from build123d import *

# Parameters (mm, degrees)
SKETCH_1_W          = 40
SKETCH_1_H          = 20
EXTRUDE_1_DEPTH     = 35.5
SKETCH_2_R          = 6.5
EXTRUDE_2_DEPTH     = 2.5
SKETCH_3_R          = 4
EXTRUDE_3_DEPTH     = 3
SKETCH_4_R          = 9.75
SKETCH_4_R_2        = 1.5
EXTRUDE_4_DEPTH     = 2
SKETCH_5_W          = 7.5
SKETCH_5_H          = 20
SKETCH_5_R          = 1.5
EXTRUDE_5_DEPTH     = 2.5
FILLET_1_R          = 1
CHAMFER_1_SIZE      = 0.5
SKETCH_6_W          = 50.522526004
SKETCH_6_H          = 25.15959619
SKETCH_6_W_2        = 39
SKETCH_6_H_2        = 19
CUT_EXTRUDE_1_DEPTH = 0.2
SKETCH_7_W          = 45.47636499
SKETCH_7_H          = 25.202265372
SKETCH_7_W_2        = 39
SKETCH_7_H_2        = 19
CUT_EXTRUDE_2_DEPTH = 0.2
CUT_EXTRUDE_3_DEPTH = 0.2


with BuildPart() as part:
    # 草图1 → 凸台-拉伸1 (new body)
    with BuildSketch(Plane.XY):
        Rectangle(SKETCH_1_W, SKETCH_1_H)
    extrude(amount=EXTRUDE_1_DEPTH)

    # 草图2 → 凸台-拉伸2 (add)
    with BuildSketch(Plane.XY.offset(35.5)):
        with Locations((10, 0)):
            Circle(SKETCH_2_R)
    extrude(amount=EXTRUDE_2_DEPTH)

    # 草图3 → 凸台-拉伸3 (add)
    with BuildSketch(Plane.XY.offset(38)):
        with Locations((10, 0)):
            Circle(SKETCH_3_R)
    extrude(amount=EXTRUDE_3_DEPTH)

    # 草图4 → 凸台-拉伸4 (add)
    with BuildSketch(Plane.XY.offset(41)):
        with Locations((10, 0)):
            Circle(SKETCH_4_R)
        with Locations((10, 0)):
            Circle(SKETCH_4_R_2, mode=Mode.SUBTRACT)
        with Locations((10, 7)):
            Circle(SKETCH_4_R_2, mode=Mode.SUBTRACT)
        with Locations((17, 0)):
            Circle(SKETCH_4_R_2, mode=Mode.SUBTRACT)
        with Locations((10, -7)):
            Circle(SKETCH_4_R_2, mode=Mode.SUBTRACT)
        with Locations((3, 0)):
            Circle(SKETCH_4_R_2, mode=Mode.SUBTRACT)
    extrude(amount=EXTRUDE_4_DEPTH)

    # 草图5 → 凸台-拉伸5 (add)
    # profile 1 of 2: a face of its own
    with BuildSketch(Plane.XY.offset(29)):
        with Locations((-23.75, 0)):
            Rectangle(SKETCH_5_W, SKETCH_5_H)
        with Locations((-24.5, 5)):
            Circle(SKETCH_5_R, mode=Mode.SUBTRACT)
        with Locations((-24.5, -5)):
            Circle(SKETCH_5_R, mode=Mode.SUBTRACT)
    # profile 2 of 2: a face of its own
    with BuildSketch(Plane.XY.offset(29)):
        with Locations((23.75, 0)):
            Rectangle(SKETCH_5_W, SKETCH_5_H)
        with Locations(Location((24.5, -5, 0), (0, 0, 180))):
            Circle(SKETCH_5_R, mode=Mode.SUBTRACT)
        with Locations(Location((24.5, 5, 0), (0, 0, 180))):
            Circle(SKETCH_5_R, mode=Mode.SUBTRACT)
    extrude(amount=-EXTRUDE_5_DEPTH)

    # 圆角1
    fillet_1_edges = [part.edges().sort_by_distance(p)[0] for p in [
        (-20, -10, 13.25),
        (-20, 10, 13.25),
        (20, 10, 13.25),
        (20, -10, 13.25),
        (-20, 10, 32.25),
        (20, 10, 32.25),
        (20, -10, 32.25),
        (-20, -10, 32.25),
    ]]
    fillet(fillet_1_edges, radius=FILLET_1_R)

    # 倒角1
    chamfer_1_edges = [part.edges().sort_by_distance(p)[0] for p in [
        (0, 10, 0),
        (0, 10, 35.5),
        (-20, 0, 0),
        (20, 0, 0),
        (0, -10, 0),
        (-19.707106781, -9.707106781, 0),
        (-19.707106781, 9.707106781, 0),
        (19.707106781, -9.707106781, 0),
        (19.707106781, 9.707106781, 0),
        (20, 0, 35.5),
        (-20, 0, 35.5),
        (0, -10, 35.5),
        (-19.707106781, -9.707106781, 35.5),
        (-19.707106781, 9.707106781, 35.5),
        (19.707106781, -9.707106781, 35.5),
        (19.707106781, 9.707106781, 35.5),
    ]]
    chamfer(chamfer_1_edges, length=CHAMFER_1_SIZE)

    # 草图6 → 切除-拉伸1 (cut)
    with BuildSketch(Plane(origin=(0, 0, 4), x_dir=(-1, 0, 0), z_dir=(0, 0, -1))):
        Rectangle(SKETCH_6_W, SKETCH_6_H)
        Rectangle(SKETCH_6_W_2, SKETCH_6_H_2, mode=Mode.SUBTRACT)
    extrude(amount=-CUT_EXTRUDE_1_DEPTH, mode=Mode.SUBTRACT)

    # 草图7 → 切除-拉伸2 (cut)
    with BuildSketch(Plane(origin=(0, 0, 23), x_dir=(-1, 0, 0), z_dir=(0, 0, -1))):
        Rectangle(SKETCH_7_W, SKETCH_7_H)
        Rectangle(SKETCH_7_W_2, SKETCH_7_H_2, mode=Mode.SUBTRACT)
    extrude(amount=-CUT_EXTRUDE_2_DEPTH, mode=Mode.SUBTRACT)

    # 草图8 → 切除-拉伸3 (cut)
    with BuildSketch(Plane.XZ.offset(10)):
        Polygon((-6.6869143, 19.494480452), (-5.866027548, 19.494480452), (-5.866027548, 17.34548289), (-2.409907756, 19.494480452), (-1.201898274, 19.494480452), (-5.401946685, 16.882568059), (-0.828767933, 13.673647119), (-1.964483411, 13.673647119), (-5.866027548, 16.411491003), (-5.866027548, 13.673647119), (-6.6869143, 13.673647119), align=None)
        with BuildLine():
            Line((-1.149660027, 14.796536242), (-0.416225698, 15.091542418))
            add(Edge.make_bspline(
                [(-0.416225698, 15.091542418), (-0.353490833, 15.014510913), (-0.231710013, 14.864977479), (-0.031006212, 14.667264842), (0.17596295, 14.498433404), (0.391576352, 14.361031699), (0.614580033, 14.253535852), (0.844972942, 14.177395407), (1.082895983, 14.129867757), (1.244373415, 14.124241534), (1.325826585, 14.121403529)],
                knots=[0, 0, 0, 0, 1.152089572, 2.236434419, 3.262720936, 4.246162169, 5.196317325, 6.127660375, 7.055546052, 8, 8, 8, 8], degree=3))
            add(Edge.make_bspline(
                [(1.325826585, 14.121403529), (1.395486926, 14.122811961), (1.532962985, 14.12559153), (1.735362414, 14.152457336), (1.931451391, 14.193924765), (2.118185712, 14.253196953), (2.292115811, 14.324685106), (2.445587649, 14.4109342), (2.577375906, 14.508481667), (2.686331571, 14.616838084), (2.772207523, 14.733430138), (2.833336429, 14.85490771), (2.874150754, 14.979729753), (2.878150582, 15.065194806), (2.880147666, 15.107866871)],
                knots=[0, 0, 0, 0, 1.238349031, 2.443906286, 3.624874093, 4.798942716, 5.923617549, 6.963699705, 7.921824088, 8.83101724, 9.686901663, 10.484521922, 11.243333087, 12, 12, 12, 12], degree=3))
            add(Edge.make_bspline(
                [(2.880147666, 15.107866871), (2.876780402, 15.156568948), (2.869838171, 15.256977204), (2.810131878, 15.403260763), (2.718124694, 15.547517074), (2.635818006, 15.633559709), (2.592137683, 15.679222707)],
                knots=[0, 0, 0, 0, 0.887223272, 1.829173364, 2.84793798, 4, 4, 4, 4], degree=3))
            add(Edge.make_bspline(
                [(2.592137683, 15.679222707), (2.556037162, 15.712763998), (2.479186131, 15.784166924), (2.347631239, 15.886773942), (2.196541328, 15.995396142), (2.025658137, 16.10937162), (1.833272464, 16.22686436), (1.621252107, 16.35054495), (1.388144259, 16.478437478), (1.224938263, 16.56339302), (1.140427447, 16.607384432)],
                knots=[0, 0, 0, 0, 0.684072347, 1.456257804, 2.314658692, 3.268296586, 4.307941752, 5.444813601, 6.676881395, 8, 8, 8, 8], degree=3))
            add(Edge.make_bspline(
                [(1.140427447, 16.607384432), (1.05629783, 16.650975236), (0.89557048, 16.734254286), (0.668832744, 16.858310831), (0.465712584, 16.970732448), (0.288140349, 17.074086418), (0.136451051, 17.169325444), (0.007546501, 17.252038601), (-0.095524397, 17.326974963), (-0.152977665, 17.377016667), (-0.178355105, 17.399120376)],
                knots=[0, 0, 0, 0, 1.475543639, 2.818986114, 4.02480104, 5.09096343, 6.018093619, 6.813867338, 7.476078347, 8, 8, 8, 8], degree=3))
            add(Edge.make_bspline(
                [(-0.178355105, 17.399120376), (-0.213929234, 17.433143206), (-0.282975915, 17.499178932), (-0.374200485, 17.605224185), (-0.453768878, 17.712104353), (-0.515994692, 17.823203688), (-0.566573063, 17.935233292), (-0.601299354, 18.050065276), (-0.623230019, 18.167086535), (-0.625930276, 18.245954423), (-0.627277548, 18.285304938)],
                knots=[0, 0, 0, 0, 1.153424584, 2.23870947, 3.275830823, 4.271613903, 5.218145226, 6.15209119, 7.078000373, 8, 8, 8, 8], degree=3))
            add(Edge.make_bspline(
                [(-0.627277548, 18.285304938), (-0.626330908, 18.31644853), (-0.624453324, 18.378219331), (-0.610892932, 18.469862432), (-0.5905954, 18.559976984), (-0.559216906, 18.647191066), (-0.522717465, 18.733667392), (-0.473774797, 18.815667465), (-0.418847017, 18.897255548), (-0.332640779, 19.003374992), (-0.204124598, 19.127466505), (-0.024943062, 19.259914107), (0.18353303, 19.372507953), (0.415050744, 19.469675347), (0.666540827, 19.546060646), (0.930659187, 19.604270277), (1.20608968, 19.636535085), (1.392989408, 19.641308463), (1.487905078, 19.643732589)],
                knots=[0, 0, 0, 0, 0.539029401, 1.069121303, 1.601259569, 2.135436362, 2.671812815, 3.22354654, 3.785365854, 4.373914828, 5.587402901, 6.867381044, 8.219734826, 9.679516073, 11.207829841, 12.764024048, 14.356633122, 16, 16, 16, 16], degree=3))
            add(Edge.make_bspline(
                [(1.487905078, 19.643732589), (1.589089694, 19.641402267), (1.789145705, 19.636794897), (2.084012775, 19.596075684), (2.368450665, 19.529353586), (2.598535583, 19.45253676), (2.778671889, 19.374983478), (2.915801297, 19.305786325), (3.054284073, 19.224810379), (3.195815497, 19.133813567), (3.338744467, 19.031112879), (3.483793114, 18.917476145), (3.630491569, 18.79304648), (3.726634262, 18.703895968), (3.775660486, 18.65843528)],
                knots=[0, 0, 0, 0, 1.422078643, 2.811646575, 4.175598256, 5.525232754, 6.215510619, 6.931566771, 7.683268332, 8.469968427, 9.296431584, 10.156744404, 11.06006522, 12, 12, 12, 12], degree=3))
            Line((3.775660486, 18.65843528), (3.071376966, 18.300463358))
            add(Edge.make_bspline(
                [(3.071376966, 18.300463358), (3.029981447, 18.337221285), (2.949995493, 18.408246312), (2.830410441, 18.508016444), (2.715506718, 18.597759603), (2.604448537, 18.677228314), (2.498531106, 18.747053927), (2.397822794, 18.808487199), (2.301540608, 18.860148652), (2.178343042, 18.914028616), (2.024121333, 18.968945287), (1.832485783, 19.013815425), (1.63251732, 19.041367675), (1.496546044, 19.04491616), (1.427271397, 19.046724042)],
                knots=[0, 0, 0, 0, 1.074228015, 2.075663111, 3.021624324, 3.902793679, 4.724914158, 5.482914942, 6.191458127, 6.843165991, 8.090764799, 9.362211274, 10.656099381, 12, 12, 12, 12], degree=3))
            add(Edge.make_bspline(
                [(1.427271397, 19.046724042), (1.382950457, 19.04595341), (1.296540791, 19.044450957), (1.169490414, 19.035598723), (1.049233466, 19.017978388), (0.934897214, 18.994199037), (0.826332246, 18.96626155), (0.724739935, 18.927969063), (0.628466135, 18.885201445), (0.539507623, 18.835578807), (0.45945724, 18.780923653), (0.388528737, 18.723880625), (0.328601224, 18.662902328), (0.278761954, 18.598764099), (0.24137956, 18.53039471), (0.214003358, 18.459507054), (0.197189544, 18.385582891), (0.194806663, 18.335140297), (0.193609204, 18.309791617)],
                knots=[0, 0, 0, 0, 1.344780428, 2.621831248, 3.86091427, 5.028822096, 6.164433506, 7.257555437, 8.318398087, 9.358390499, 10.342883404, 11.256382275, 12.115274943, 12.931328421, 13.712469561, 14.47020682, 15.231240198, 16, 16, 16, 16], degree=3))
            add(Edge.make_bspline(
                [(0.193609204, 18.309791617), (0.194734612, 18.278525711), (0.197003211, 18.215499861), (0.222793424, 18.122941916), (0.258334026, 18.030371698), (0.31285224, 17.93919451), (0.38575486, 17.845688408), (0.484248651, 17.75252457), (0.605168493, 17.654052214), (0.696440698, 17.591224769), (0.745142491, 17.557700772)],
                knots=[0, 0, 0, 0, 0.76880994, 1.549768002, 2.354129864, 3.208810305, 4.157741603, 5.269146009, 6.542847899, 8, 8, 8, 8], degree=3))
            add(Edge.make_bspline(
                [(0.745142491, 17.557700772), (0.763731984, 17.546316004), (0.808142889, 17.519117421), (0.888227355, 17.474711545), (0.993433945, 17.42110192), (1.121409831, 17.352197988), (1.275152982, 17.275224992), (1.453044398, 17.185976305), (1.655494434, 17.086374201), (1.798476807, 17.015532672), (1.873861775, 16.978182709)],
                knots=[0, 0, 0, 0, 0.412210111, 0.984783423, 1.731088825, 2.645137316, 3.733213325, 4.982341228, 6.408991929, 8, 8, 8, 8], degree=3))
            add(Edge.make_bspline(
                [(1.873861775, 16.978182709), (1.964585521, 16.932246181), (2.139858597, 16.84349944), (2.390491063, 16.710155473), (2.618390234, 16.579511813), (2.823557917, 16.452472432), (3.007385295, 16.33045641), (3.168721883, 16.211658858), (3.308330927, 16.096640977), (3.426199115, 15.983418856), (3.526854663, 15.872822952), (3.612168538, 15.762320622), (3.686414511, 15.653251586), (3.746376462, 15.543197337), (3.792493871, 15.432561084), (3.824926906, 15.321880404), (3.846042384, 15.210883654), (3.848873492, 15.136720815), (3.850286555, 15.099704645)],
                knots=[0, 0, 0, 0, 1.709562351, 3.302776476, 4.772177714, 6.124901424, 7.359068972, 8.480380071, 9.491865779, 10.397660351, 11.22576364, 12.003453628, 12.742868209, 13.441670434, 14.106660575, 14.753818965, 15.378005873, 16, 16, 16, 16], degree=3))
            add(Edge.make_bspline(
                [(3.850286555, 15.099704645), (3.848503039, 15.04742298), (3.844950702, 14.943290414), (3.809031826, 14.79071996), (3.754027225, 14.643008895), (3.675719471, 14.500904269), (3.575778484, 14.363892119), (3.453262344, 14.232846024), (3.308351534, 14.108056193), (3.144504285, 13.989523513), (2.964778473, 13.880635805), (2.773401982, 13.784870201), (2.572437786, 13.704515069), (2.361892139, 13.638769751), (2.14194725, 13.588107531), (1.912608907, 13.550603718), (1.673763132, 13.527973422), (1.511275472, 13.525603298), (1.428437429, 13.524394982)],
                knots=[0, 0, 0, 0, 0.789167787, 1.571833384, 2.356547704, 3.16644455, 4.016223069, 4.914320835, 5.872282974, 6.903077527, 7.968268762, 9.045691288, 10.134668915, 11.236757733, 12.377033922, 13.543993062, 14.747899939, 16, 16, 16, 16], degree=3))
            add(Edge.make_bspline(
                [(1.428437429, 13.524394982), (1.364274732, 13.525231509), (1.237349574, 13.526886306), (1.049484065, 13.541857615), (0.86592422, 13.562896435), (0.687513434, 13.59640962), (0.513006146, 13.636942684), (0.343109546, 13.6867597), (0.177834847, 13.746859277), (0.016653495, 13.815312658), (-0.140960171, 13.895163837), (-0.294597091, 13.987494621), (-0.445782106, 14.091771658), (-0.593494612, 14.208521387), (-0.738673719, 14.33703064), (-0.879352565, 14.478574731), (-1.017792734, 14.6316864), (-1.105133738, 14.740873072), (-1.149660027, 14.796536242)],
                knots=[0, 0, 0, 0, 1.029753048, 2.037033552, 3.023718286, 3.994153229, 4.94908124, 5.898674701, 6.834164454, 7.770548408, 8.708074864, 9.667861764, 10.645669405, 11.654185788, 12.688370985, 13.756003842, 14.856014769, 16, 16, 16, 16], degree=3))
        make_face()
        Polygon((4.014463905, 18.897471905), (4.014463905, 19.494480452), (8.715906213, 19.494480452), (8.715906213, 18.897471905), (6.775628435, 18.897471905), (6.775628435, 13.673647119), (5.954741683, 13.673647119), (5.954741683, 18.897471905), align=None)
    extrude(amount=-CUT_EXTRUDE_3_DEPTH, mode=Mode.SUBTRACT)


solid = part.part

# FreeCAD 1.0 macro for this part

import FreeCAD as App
import Part
import Sketcher
from FreeCAD import Vector


def edges_at(feature, points):
    """Names of the edges that pass closest to the given points."""
    edges = feature.Shape.Edges
    near = lambda p: min(range(len(edges)), key=lambda i: edges[i].distToShape(Part.Vertex(*p))[0])
    return sorted({f"Edge{near(p) + 1}" for p in points})


def add_polygon(sketch, points):
    """Adds a closed chain of lines whose ends are joined by coincident constraints."""
    first, n = sketch.GeometryCount, len(points)
    for a, b in zip(points, points[1:] + points[:1]):
        sketch.addGeometry(Part.LineSegment(App.Vector(*a, 0), App.Vector(*b, 0)), False)
    for i in range(n):
        sketch.addConstraint(Sketcher.Constraint("Coincident", first + i, 2, first + (i + 1) % n, 1))

doc = App.newDocument("Part")
body = doc.addObject("PartDesign::Body", "Body")

sketch1 = body.newObject("Sketcher::SketchObject", "Sketch")
sketch1.AttachmentSupport = (doc.getObject("XY_Plane"), [""])
sketch1.MapMode = "FlatFace"
add_polygon(sketch1, [(-20, 10), (-20, -10), (20, -10), (20, 10)])
sketch1.addConstraint([
    Sketcher.Constraint("Vertical", 0),
    Sketcher.Constraint("Horizontal", 1),
    Sketcher.Constraint("Vertical", 2),
    Sketcher.Constraint("Horizontal", 3),
    Sketcher.Constraint("Symmetric", 0, 2, 2, 2, -1, 1),
    Sketcher.Constraint("DistanceX", 1, 1, 1, 2, 40.0),
    Sketcher.Constraint("DistanceY", 0, 2, 0, 1, 20.0),
])
pad1 = body.newObject("PartDesign::Pad", "Pad")
pad1.Profile = sketch1
pad1.Length = 35.5

sketch2 = body.newObject("Sketcher::SketchObject", "Sketch001")
sketch2.AttachmentSupport = (doc.getObject("XY_Plane"), [""])
sketch2.MapMode = "FlatFace"
sketch2.AttachmentOffset = App.Placement(Vector(0, 0, 35.5), App.Rotation())
sketch2.addGeometry(Part.Circle(Vector(10, 0, 0), Vector(0, 0, 1), 6), False)
sketch2.addConstraint([
    Sketcher.Constraint("PointOnObject", 0, 3, -1),
    Sketcher.Constraint("Diameter", 0, 13.0),
    Sketcher.Constraint("DistanceX", -1, 1, 0, 3, 10.0),
])
pad2 = body.newObject("PartDesign::Pad", "Pad001")
pad2.Profile = sketch2
pad2.Length = 2.5

sketch3 = body.newObject("Sketcher::SketchObject", "Sketch002")
sketch3.AttachmentSupport = (doc.getObject("XY_Plane"), [""])
sketch3.MapMode = "FlatFace"
sketch3.AttachmentOffset = App.Placement(Vector(0, 0, 38), App.Rotation())
sketch3.addGeometry(Part.Circle(Vector(10, 0, 0), Vector(0, 0, 1), 4), False)
sketch3.addConstraint([
    Sketcher.Constraint("PointOnObject", 0, 3, -1),
    Sketcher.Constraint("Diameter", 0, 8.0),
    Sketcher.Constraint("DistanceX", -1, 1, 0, 3, 10.0),
])
pad3 = body.newObject("PartDesign::Pad", "Pad002")
pad3.Profile = sketch3
pad3.Length = 3

sketch4 = body.newObject("Sketcher::SketchObject", "Sketch003")
sketch4.AttachmentSupport = (doc.getObject("XY_Plane"), [""])
sketch4.MapMode = "FlatFace"
sketch4.AttachmentOffset = App.Placement(Vector(0, 0, 41), App.Rotation())
sketch4.addGeometry([
    Part.Circle(Vector(10, 0, 0), Vector(0, 0, 1), 9.8),
    Part.Circle(Vector(10, -7, 0), Vector(0, 0, 1), 1.5),
    Part.Circle(Vector(3, 0, 0), Vector(0, 0, 1), 1.5),
    Part.Circle(Vector(10, 0, 0), Vector(0, 0, 1), 1.5),
    Part.Circle(Vector(17, 0, 0), Vector(0, 0, 1), 1.5),
    Part.Circle(Vector(10, 7, 0), Vector(0, 0, 1), 1.5),
], False)
sketch4.addConstraint([
    Sketcher.Constraint("Coincident", 3, 3, 0, 3),
    Sketcher.Constraint("Equal", 1, 2),
    Sketcher.Constraint("Equal", 2, 3),
    Sketcher.Constraint("Equal", 3, 4),
    Sketcher.Constraint("Equal", 4, 5),
    Sketcher.Constraint("Symmetric", 1, 3, 5, 3, -1),
    Sketcher.Constraint("PointOnObject", 0, 3, -1),
    Sketcher.Constraint("PointOnObject", 2, 3, -1),
    Sketcher.Constraint("PointOnObject", 4, 3, -1),
    Sketcher.Constraint("Vertical", 0, 3, 1, 3),
    Sketcher.Constraint("Diameter", 1, 3.0),
    Sketcher.Constraint("Diameter", 0, 19.5),
    Sketcher.Constraint("DistanceX", -1, 1, 0, 3, 10.0),
    Sketcher.Constraint("DistanceY", 1, 3, -1, 1, 7.0),
    Sketcher.Constraint("DistanceX", -1, 1, 2, 3, 3.0),
    Sketcher.Constraint("DistanceX", -1, 1, 4, 3, 17.0),
])
pad4 = body.newObject("PartDesign::Pad", "Pad003")
pad4.Profile = sketch4
pad4.Length = 2

sketch5 = body.newObject("Sketcher::SketchObject", "Sketch004")
sketch5.AttachmentSupport = (doc.getObject("XY_Plane"), [""])
sketch5.MapMode = "FlatFace"
sketch5.AttachmentOffset = App.Placement(Vector(0, 0, 29), App.Rotation())
add_polygon(sketch5, [(-27.5, 10), (-27.5, -10), (-20, -10), (-20, 10)])
sketch5.addGeometry(Part.Circle(Vector(-24.5, -5, 0), Vector(0, 0, 1), 1.5), False)
sketch5.addGeometry(Part.Circle(Vector(-24.5, 5, 0), Vector(0, 0, 1), 1.5), False)
add_polygon(sketch5, [(20, 10), (20, -10), (27.5, -10), (27.5, 10)])
sketch5.addGeometry(Part.Circle(Vector(24.5, -5, 0), Vector(0, 0, 1), 1.5), False)
sketch5.addGeometry(Part.Circle(Vector(24.5, 5, 0), Vector(0, 0, 1), 1.5), False)
sketch5.addConstraint([
    Sketcher.Constraint("Vertical", 0),
    Sketcher.Constraint("Horizontal", 1),
    Sketcher.Constraint("Vertical", 2),
    Sketcher.Constraint("Horizontal", 3),
    Sketcher.Constraint("Vertical", 6),
    Sketcher.Constraint("Horizontal", 7),
    Sketcher.Constraint("Vertical", 8),
    Sketcher.Constraint("Horizontal", 9),
    Sketcher.Constraint("Equal", 4, 5),
    Sketcher.Constraint("Equal", 5, 10),
    Sketcher.Constraint("Equal", 10, 11),
    Sketcher.Constraint("Symmetric", 5, 3, 10, 3, -1, 1),
    Sketcher.Constraint("Symmetric", 4, 3, 11, 3, -1, 1),
    Sketcher.Constraint("Symmetric", 2, 2, 6, 2, -1, 1),
    Sketcher.Constraint("Symmetric", 0, 2, 8, 2, -1, 1),
    Sketcher.Constraint("Symmetric", 4, 3, 10, 3, -2),
    Sketcher.Constraint("Horizontal", 1, 2, 6, 2),
    Sketcher.Constraint("Diameter", 4, 3.0),
    Sketcher.Constraint("DistanceY", 0, 2, 0, 1, 20.0),
    Sketcher.Constraint("DistanceX", 1, 1, 1, 2, 7.5),
    Sketcher.Constraint("DistanceY", 4, 3, -1, 1, 5.0),
    Sketcher.Constraint("DistanceX", 1, 2, -1, 1, 20.0),
    Sketcher.Constraint("DistanceX", 4, 3, 10, 3, 49.0),
])
pad5 = body.newObject("PartDesign::Pad", "Pad004")
pad5.Profile = sketch5
pad5.Length = 2.5
pad5.Reversed = True
doc.recompute()

fillet = body.newObject("PartDesign::Fillet", "Fillet")
fillet.Base = (pad5, edges_at(pad5, [
    (-20, -10, 13.25),
    (-20, 10, 13.25),
    (20, 10, 13.25),
    (20, -10, 13.25),
    (-20, 10, 32.25),
    (20, 10, 32.25),
    (20, -10, 32.25),
    (-20, -10, 32.25),
]))
fillet.Radius = 1
doc.recompute()

chamfer = body.newObject("PartDesign::Chamfer", "Chamfer")
chamfer.Base = (fillet, edges_at(fillet, [
    (0, 10, 0),
    (0, 10, 35.5),
    (-20, 0, 0),
    (20, 0, 0),
    (0, -10, 0),
    (-19.707, -9.707, 0),
    (-19.707, 9.707, 0),
    (19.707, -9.707, 0),
    (19.707, 9.707, 0),
    (20, 0, 35.5),
    (-20, 0, 35.5),
    (0, -10, 35.5),
    (-19.707, -9.707, 35.5),
    (-19.707, 9.707, 35.5),
    (19.707, -9.707, 35.5),
    (19.707, 9.707, 35.5),
]))
chamfer.Size = 0.5

sketch6 = body.newObject("Sketcher::SketchObject", "Sketch005")
sketch6.AttachmentSupport = (doc.getObject("XY_Plane"), [""])
sketch6.MapMode = "FlatFace"
sketch6.AttachmentOffset = App.Placement(Vector(0, 0, 4), App.Rotation())
add_polygon(sketch6, [(25, 13), (25, -13), (-25, -13), (-25, 13)])
add_polygon(sketch6, [(-20, -10), (20, -10), (20, 10), (-20, 10)])
sketch6.addConstraint([
    Sketcher.Constraint("Vertical", 0),
    Sketcher.Constraint("Horizontal", 1),
    Sketcher.Constraint("Vertical", 2),
    Sketcher.Constraint("Horizontal", 3),
    Sketcher.Constraint("Horizontal", 4),
    Sketcher.Constraint("Vertical", 5),
    Sketcher.Constraint("Horizontal", 6),
    Sketcher.Constraint("Vertical", 7),
    Sketcher.Constraint("Symmetric", 0, 2, 2, 2, -1, 1),
    Sketcher.Constraint("Symmetric", 4, 2, 6, 2, -1, 1),
    Sketcher.Constraint("DistanceX", 4, 1, 4, 2, 39.0),
    Sketcher.Constraint("DistanceY", 5, 1, 5, 2, 19.0),
    Sketcher.Constraint("DistanceY", 0, 2, -1, 1, 12.579798),
    Sketcher.Constraint("DistanceX", 1, 2, 1, 1, 50.522526),
])
pocket1 = body.newObject("PartDesign::Pocket", "Pocket")
pocket1.Profile = sketch6
pocket1.Length = 0.2
pocket1.Reversed = True

sketch7 = body.newObject("Sketcher::SketchObject", "Sketch006")
sketch7.AttachmentSupport = (doc.getObject("XY_Plane"), [""])
sketch7.MapMode = "FlatFace"
sketch7.AttachmentOffset = App.Placement(Vector(0, 0, 23), App.Rotation())
add_polygon(sketch7, [(23, 13), (23, -13), (-23, -13), (-23, 13)])
add_polygon(sketch7, [(-20, -10), (20, -10), (20, 10), (-20, 10)])
sketch7.addConstraint([
    Sketcher.Constraint("Vertical", 0),
    Sketcher.Constraint("Horizontal", 1),
    Sketcher.Constraint("Vertical", 2),
    Sketcher.Constraint("Horizontal", 3),
    Sketcher.Constraint("Horizontal", 4),
    Sketcher.Constraint("Vertical", 5),
    Sketcher.Constraint("Horizontal", 6),
    Sketcher.Constraint("Vertical", 7),
    Sketcher.Constraint("Symmetric", 0, 2, 2, 2, -1, 1),
    Sketcher.Constraint("Symmetric", 4, 2, 6, 2, -1, 1),
    Sketcher.Constraint("DistanceX", 4, 1, 4, 2, 39.0),
    Sketcher.Constraint("DistanceY", 5, 1, 5, 2, 19.0),
    Sketcher.Constraint("DistanceX", 1, 2, 1, 1, 45.476365),
    Sketcher.Constraint("DistanceY", 0, 2, 0, 1, 25.202265),
])
pocket2 = body.newObject("PartDesign::Pocket", "Pocket001")
pocket2.Profile = sketch7
pocket2.Length = 0.2
pocket2.Reversed = True

sketch8 = body.newObject("Sketcher::SketchObject", "Sketch007")
sketch8.AttachmentSupport = (doc.getObject("XZ_Plane"), [""])
sketch8.MapMode = "FlatFace"
sketch8.AttachmentOffset = App.Placement(Vector(0, 0, 10), App.Rotation())
add_polygon(sketch8, [(-5.866028, 19.49448), (-6.686914, 19.49448), (-6.686914, 13.673647), (-5.866028, 13.673647), (-5.866028, 16.411491), (-1.964483, 13.673647), (-0.828768, 13.673647), (-5.401947, 16.882568), (-1.201898, 19.49448), (-2.409908, 19.49448), (-5.866028, 17.345483)])
sketch8.addGeometry(Part.LineSegment(Vector(-0.416226, 15.091542, 0), Vector(-1.14966, 14.796536, 0)), False)
sketch8.addGeometry(Part.BSplineCurve([Vector(1.428437, 13.524395, 0), Vector(1.364275, 13.525232, 0), Vector(1.23735, 13.526886, 0), Vector(1.049484, 13.541858, 0), Vector(0.865924, 13.562896, 0), Vector(0.687513, 13.59641, 0), Vector(0.513006, 13.636943, 0), Vector(0.34311, 13.68676, 0), Vector(0.177835, 13.746859, 0), Vector(0.016653, 13.815313, 0), Vector(-0.14096, 13.895164, 0), Vector(-0.294597, 13.987495, 0), Vector(-0.445782, 14.091772, 0), Vector(-0.593495, 14.208521, 0), Vector(-0.738674, 14.337031, 0), Vector(-0.879353, 14.478575, 0), Vector(-1.017793, 14.631686, 0), Vector(-1.105134, 14.740873, 0), Vector(-1.14966, 14.796536, 0)], [4, 1, 1, 1, 1, 1, 1, 1, 1, 1, 1, 1, 1, 1, 1, 1, 4], [0, 1.029753048, 2.037033552, 3.023718286, 3.994153229, 4.94908124, 5.898674701, 6.834164454, 7.770548408, 8.708074864, 9.667861764, 10.645669405, 11.654185788, 12.688370985, 13.756003842, 14.856014769, 16], False, 3, [1, 1, 1, 1, 1, 1, 1, 1, 1, 1, 1, 1, 1, 1, 1, 1, 1, 1, 1], False), False)
sketch8.addGeometry(Part.BSplineCurve([Vector(3.850287, 15.099705, 0), Vector(3.848503, 15.047423, 0), Vector(3.844951, 14.94329, 0), Vector(3.809032, 14.79072, 0), Vector(3.754027, 14.643009, 0), Vector(3.675719, 14.500904, 0), Vector(3.575778, 14.363892, 0), Vector(3.453262, 14.232846, 0), Vector(3.308352, 14.108056, 0), Vector(3.144504, 13.989524, 0), Vector(2.964778, 13.880636, 0), Vector(2.773402, 13.78487, 0), Vector(2.572438, 13.704515, 0), Vector(2.361892, 13.63877, 0), Vector(2.141947, 13.588108, 0), Vector(1.912609, 13.550604, 0), Vector(1.673763, 13.527973, 0), Vector(1.511275, 13.525603, 0), Vector(1.428437, 13.524395, 0)], [4, 1, 1, 1, 1, 1, 1, 1, 1, 1, 1, 1, 1, 1, 1, 1, 4], [0, 0.789167787, 1.571833384, 2.356547704, 3.16644455, 4.016223069, 4.914320835, 5.872282974, 6.903077527, 7.968268762, 9.045691288, 10.134668915, 11.236757733, 12.377033922, 13.543993062, 14.747899939, 16], False, 3, [1, 1, 1, 1, 1, 1, 1, 1, 1, 1, 1, 1, 1, 1, 1, 1, 1, 1, 1], False), False)
sketch8.addGeometry(Part.BSplineCurve([Vector(1.873862, 16.978183, 0), Vector(1.964586, 16.932246, 0), Vector(2.139859, 16.843499, 0), Vector(2.390491, 16.710155, 0), Vector(2.61839, 16.579512, 0), Vector(2.823558, 16.452472, 0), Vector(3.007385, 16.330456, 0), Vector(3.168722, 16.211659, 0), Vector(3.308331, 16.096641, 0), Vector(3.426199, 15.983419, 0), Vector(3.526855, 15.872823, 0), Vector(3.612169, 15.762321, 0), Vector(3.686415, 15.653252, 0), Vector(3.746376, 15.543197, 0), Vector(3.792494, 15.432561, 0), Vector(3.824927, 15.32188, 0), Vector(3.846042, 15.210884, 0), Vector(3.848873, 15.136721, 0), Vector(3.850287, 15.099705, 0)], [4, 1, 1, 1, 1, 1, 1, 1, 1, 1, 1, 1, 1, 1, 1, 1, 4], [0, 1.709562351, 3.302776476, 4.772177714, 6.124901424, 7.359068972, 8.480380071, 9.491865779, 10.397660351, 11.22576364, 12.003453628, 12.742868209, 13.441670434, 14.106660575, 14.753818965, 15.378005873, 16], False, 3, [1, 1, 1, 1, 1, 1, 1, 1, 1, 1, 1, 1, 1, 1, 1, 1, 1, 1, 1], False), False)
sketch8.addGeometry(Part.BSplineCurve([Vector(0.745142, 17.557701, 0), Vector(0.763732, 17.546316, 0), Vector(0.808143, 17.519117, 0), Vector(0.888227, 17.474712, 0), Vector(0.993434, 17.421102, 0), Vector(1.12141, 17.352198, 0), Vector(1.275153, 17.275225, 0), Vector(1.453044, 17.185976, 0), Vector(1.655494, 17.086374, 0), Vector(1.798477, 17.015533, 0), Vector(1.873862, 16.978183, 0)], [4, 1, 1, 1, 1, 1, 1, 1, 4], [0, 0.412210111, 0.984783423, 1.731088825, 2.645137316, 3.733213325, 4.982341228, 6.408991929, 8], False, 3, [1, 1, 1, 1, 1, 1, 1, 1, 1, 1, 1], False), False)
sketch8.addGeometry(Part.BSplineCurve([Vector(0.193609, 18.309792, 0), Vector(0.194735, 18.278526, 0), Vector(0.197003, 18.2155, 0), Vector(0.222793, 18.122942, 0), Vector(0.258334, 18.030372, 0), Vector(0.312852, 17.939195, 0), Vector(0.385755, 17.845688, 0), Vector(0.484249, 17.752525, 0), Vector(0.605168, 17.654052, 0), Vector(0.696441, 17.591225, 0), Vector(0.745142, 17.557701, 0)], [4, 1, 1, 1, 1, 1, 1, 1, 4], [0, 0.76880994, 1.549768002, 2.354129864, 3.208810305, 4.157741603, 5.269146009, 6.542847899, 8], False, 3, [1, 1, 1, 1, 1, 1, 1, 1, 1, 1, 1], False), False)
sketch8.addGeometry(Part.BSplineCurve([Vector(1.427271, 19.046724, 0), Vector(1.38295, 19.045953, 0), Vector(1.296541, 19.044451, 0), Vector(1.16949, 19.035599, 0), Vector(1.049233, 19.017978, 0), Vector(0.934897, 18.994199, 0), Vector(0.826332, 18.966262, 0), Vector(0.72474, 18.927969, 0), Vector(0.628466, 18.885201, 0), Vector(0.539508, 18.835579, 0), Vector(0.459457, 18.780924, 0), Vector(0.388529, 18.723881, 0), Vector(0.328601, 18.662902, 0), Vector(0.278762, 18.598764, 0), Vector(0.24138, 18.530395, 0), Vector(0.214003, 18.459507, 0), Vector(0.19719, 18.385583, 0), Vector(0.194807, 18.33514, 0), Vector(0.193609, 18.309792, 0)], [4, 1, 1, 1, 1, 1, 1, 1, 1, 1, 1, 1, 1, 1, 1, 1, 4], [0, 1.344780428, 2.621831248, 3.86091427, 5.028822096, 6.164433506, 7.257555437, 8.318398087, 9.358390499, 10.342883404, 11.256382275, 12.115274943, 12.931328421, 13.712469561, 14.47020682, 15.231240198, 16], False, 3, [1, 1, 1, 1, 1, 1, 1, 1, 1, 1, 1, 1, 1, 1, 1, 1, 1, 1, 1], False), False)
sketch8.addGeometry(Part.BSplineCurve([Vector(3.071377, 18.300463, 0), Vector(3.029981, 18.337221, 0), Vector(2.949995, 18.408246, 0), Vector(2.83041, 18.508016, 0), Vector(2.715507, 18.59776, 0), Vector(2.604449, 18.677228, 0), Vector(2.498531, 18.747054, 0), Vector(2.397823, 18.808487, 0), Vector(2.301541, 18.860149, 0), Vector(2.178343, 18.914029, 0), Vector(2.024121, 18.968945, 0), Vector(1.832486, 19.013815, 0), Vector(1.632517, 19.041368, 0), Vector(1.496546, 19.044916, 0), Vector(1.427271, 19.046724, 0)], [4, 1, 1, 1, 1, 1, 1, 1, 1, 1, 1, 1, 4], [0, 1.074228015, 2.075663111, 3.021624324, 3.902793679, 4.724914158, 5.482914942, 6.191458127, 6.843165991, 8.090764799, 9.362211274, 10.656099381, 12], False, 3, [1, 1, 1, 1, 1, 1, 1, 1, 1, 1, 1, 1, 1, 1, 1], False), False)
sketch8.addGeometry(Part.LineSegment(Vector(3.071377, 18.300463, 0), Vector(3.77566, 18.658435, 0)), False)
sketch8.addGeometry(Part.BSplineCurve([Vector(1.487905, 19.643733, 0), Vector(1.58909, 19.641402, 0), Vector(1.789146, 19.636795, 0), Vector(2.084013, 19.596076, 0), Vector(2.368451, 19.529354, 0), Vector(2.598536, 19.452537, 0), Vector(2.778672, 19.374983, 0), Vector(2.915801, 19.305786, 0), Vector(3.054284, 19.22481, 0), Vector(3.195815, 19.133814, 0), Vector(3.338744, 19.031113, 0), Vector(3.483793, 18.917476, 0), Vector(3.630492, 18.793046, 0), Vector(3.726634, 18.703896, 0), Vector(3.77566, 18.658435, 0)], [4, 1, 1, 1, 1, 1, 1, 1, 1, 1, 1, 1, 4], [0, 1.422078643, 2.811646575, 4.175598256, 5.525232754, 6.215510619, 6.931566771, 7.683268332, 8.469968427, 9.296431584, 10.156744404, 11.06006522, 12], False, 3, [1, 1, 1, 1, 1, 1, 1, 1, 1, 1, 1, 1, 1, 1, 1], False), False)
sketch8.addGeometry(Part.BSplineCurve([Vector(-0.627278, 18.285305, 0), Vector(-0.626331, 18.316449, 0), Vector(-0.624453, 18.378219, 0), Vector(-0.610893, 18.469862, 0), Vector(-0.590595, 18.559977, 0), Vector(-0.559217, 18.647191, 0), Vector(-0.522717, 18.733667, 0), Vector(-0.473775, 18.815667, 0), Vector(-0.418847, 18.897256, 0), Vector(-0.332641, 19.003375, 0), Vector(-0.204125, 19.127467, 0), Vector(-0.024943, 19.259914, 0), Vector(0.183533, 19.372508, 0), Vector(0.415051, 19.469675, 0), Vector(0.666541, 19.546061, 0), Vector(0.930659, 19.60427, 0), Vector(1.20609, 19.636535, 0), Vector(1.392989, 19.641308, 0), Vector(1.487905, 19.643733, 0)], [4, 1, 1, 1, 1, 1, 1, 1, 1, 1, 1, 1, 1, 1, 1, 1, 4], [0, 0.539029401, 1.069121303, 1.601259569, 2.135436362, 2.671812815, 3.22354654, 3.785365854, 4.373914828, 5.587402901, 6.867381044, 8.219734826, 9.679516073, 11.207829841, 12.764024048, 14.356633122, 16], False, 3, [1, 1, 1, 1, 1, 1, 1, 1, 1, 1, 1, 1, 1, 1, 1, 1, 1, 1, 1], False), False)
sketch8.addGeometry(Part.BSplineCurve([Vector(-0.178355, 17.39912, 0), Vector(-0.213929, 17.433143, 0), Vector(-0.282976, 17.499179, 0), Vector(-0.3742, 17.605224, 0), Vector(-0.453769, 17.712104, 0), Vector(-0.515995, 17.823204, 0), Vector(-0.566573, 17.935233, 0), Vector(-0.601299, 18.050065, 0), Vector(-0.62323, 18.167087, 0), Vector(-0.62593, 18.245954, 0), Vector(-0.627278, 18.285305, 0)], [4, 1, 1, 1, 1, 1, 1, 1, 4], [0, 1.153424584, 2.23870947, 3.275830823, 4.271613903, 5.218145226, 6.15209119, 7.078000373, 8], False, 3, [1, 1, 1, 1, 1, 1, 1, 1, 1, 1, 1], False), False)
sketch8.addGeometry(Part.BSplineCurve([Vector(1.140427, 16.607384, 0), Vector(1.056298, 16.650975, 0), Vector(0.89557, 16.734254, 0), Vector(0.668833, 16.858311, 0), Vector(0.465713, 16.970732, 0), Vector(0.28814, 17.074086, 0), Vector(0.136451, 17.169325, 0), Vector(0.007547, 17.252039, 0), Vector(-0.095524, 17.326975, 0), Vector(-0.152978, 17.377017, 0), Vector(-0.178355, 17.39912, 0)], [4, 1, 1, 1, 1, 1, 1, 1, 4], [0, 1.475543639, 2.818986114, 4.02480104, 5.09096343, 6.018093619, 6.813867338, 7.476078347, 8], False, 3, [1, 1, 1, 1, 1, 1, 1, 1, 1, 1, 1], False), False)
sketch8.addGeometry(Part.BSplineCurve([Vector(2.592138, 15.679223, 0), Vector(2.556037, 15.712764, 0), Vector(2.479186, 15.784167, 0), Vector(2.347631, 15.886774, 0), Vector(2.196541, 15.995396, 0), Vector(2.025658, 16.109372, 0), Vector(1.833272, 16.226864, 0), Vector(1.621252, 16.350545, 0), Vector(1.388144, 16.478437, 0), Vector(1.224938, 16.563393, 0), Vector(1.140427, 16.607384, 0)], [4, 1, 1, 1, 1, 1, 1, 1, 4], [0, 0.684072347, 1.456257804, 2.314658692, 3.268296586, 4.307941752, 5.444813601, 6.676881395, 8], False, 3, [1, 1, 1, 1, 1, 1, 1, 1, 1, 1, 1], False), False)
sketch8.addGeometry(Part.BSplineCurve([Vector(2.880148, 15.107867, 0), Vector(2.87678, 15.156569, 0), Vector(2.869838, 15.256977, 0), Vector(2.810132, 15.403261, 0), Vector(2.718125, 15.547517, 0), Vector(2.635818, 15.63356, 0), Vector(2.592138, 15.679223, 0)], [4, 1, 1, 1, 4], [0, 0.887223272, 1.829173364, 2.84793798, 4], False, 3, [1, 1, 1, 1, 1, 1, 1], False), False)
sketch8.addGeometry(Part.BSplineCurve([Vector(1.325827, 14.121404, 0), Vector(1.395487, 14.122812, 0), Vector(1.532963, 14.125592, 0), Vector(1.735362, 14.152457, 0), Vector(1.931451, 14.193925, 0), Vector(2.118186, 14.253197, 0), Vector(2.292116, 14.324685, 0), Vector(2.445588, 14.410934, 0), Vector(2.577376, 14.508482, 0), Vector(2.686332, 14.616838, 0), Vector(2.772208, 14.73343, 0), Vector(2.833336, 14.854908, 0), Vector(2.874151, 14.97973, 0), Vector(2.878151, 15.065195, 0), Vector(2.880148, 15.107867, 0)], [4, 1, 1, 1, 1, 1, 1, 1, 1, 1, 1, 1, 4], [0, 1.238349031, 2.443906286, 3.624874093, 4.798942716, 5.923617549, 6.963699705, 7.921824088, 8.83101724, 9.686901663, 10.484521922, 11.243333087, 12], False, 3, [1, 1, 1, 1, 1, 1, 1, 1, 1, 1, 1, 1, 1, 1, 1], False), False)
sketch8.addGeometry(Part.BSplineCurve([Vector(-0.416226, 15.091542, 0), Vector(-0.353491, 15.014511, 0), Vector(-0.23171, 14.864977, 0), Vector(-0.031006, 14.667265, 0), Vector(0.175963, 14.498433, 0), Vector(0.391576, 14.361032, 0), Vector(0.61458, 14.253536, 0), Vector(0.844973, 14.177395, 0), Vector(1.082896, 14.129868, 0), Vector(1.244373, 14.124242, 0), Vector(1.325827, 14.121404, 0)], [4, 1, 1, 1, 1, 1, 1, 1, 4], [0, 1.152089572, 2.236434419, 3.262720936, 4.246162169, 5.196317325, 6.127660375, 7.055546052, 8], False, 3, [1, 1, 1, 1, 1, 1, 1, 1, 1, 1, 1], False), False)
add_polygon(sketch8, [(4.014464, 19.49448), (4.014464, 18.897472), (5.954742, 18.897472), (5.954742, 13.673647), (6.775628, 13.673647), (6.775628, 18.897472), (8.715906, 18.897472), (8.715906, 19.49448)])
sketch8.addConstraint([
    Sketcher.Constraint("Block", 12),
    Sketcher.Constraint("Block", 13),
    Sketcher.Constraint("Block", 14),
    Sketcher.Constraint("Block", 15),
    Sketcher.Constraint("Block", 16),
    Sketcher.Constraint("Block", 17),
    Sketcher.Constraint("Block", 18),
    Sketcher.Constraint("Block", 20),
    Sketcher.Constraint("Block", 21),
    Sketcher.Constraint("Block", 22),
    Sketcher.Constraint("Block", 23),
    Sketcher.Constraint("Block", 24),
    Sketcher.Constraint("Block", 25),
    Sketcher.Constraint("Block", 26),
    Sketcher.Constraint("Block", 27),
    Sketcher.Constraint("Coincident", 11, 2, 12, 2),
    Sketcher.Constraint("Coincident", 18, 1, 19, 1),
    Sketcher.Constraint("Coincident", 19, 2, 20, 2),
    Sketcher.Constraint("Coincident", 27, 1, 11, 1),
    Sketcher.Constraint("Horizontal", 0),
    Sketcher.Constraint("Vertical", 1),
    Sketcher.Constraint("Horizontal", 2),
    Sketcher.Constraint("Vertical", 3),
    Sketcher.Constraint("Horizontal", 5),
    Sketcher.Constraint("Horizontal", 8),
    Sketcher.Constraint("Vertical", 10),
    Sketcher.Constraint("Vertical", 28),
    Sketcher.Constraint("Horizontal", 29),
    Sketcher.Constraint("Vertical", 30),
    Sketcher.Constraint("Horizontal", 31),
    Sketcher.Constraint("Vertical", 32),
    Sketcher.Constraint("Horizontal", 33),
    Sketcher.Constraint("Vertical", 34),
    Sketcher.Constraint("Horizontal", 35),
    Sketcher.Constraint("Horizontal", 2, 2, 4, 2),
    Sketcher.Constraint("Horizontal", 0, 2, 7, 2),
    Sketcher.Constraint("Horizontal", 5, 2, 30, 2),
    Sketcher.Constraint("Horizontal", 29, 2, 32, 2),
    Sketcher.Constraint("Horizontal", 10, 2, 34, 2),
    Sketcher.Constraint("Vertical", 3, 2, 9, 2),
    Sketcher.Constraint("Equal", 2, 31),
    Sketcher.Constraint("Equal", 29, 33),
    Sketcher.Constraint("DistanceX", 8, 2, 8, 1, 1.208009),
    Sketcher.Constraint("DistanceY", 28, 2, 28, 1, 0.597009),
    Sketcher.Constraint("DistanceX", 7, 2, -1, 1, 1.201898),
    Sketcher.Constraint("DistanceX", 11, 2, 29, 2, 7.104402),
    Sketcher.Constraint("Distance", 9, 4.069761),
    Sketcher.Constraint("DistanceX", 0, 2, 0, 1, 0.820887),
    Sketcher.Constraint("DistanceX", 5, 1, 5, 2, 1.135715),
    Sketcher.Constraint("DistanceX", 29, 1, 29, 2, 1.940278),
    Sketcher.Constraint("DistanceY", 1, 2, 1, 1, 5.820833),
    Sketcher.Constraint("DistanceY", 3, 1, 3, 2, 2.737844),
    Sketcher.Constraint("DistanceY", 10, 1, 10, 2, 2.148998),
    Sketcher.Constraint("DistanceY", -1, 1, 0, 2, 19.49448),
    Sketcher.Constraint("DistanceY", -1, 1, 6, 2, 16.882568),
    Sketcher.Constraint("DistanceX", 1, 2, 4, 2, 4.722431),
    Sketcher.Constraint("DistanceX", 3, 2, 6, 2, 0.464081),
])
pocket3 = body.newObject("PartDesign::Pocket", "Pocket002")
pocket3.Profile = sketch8
pocket3.Length = 0.2

doc.recompute()
